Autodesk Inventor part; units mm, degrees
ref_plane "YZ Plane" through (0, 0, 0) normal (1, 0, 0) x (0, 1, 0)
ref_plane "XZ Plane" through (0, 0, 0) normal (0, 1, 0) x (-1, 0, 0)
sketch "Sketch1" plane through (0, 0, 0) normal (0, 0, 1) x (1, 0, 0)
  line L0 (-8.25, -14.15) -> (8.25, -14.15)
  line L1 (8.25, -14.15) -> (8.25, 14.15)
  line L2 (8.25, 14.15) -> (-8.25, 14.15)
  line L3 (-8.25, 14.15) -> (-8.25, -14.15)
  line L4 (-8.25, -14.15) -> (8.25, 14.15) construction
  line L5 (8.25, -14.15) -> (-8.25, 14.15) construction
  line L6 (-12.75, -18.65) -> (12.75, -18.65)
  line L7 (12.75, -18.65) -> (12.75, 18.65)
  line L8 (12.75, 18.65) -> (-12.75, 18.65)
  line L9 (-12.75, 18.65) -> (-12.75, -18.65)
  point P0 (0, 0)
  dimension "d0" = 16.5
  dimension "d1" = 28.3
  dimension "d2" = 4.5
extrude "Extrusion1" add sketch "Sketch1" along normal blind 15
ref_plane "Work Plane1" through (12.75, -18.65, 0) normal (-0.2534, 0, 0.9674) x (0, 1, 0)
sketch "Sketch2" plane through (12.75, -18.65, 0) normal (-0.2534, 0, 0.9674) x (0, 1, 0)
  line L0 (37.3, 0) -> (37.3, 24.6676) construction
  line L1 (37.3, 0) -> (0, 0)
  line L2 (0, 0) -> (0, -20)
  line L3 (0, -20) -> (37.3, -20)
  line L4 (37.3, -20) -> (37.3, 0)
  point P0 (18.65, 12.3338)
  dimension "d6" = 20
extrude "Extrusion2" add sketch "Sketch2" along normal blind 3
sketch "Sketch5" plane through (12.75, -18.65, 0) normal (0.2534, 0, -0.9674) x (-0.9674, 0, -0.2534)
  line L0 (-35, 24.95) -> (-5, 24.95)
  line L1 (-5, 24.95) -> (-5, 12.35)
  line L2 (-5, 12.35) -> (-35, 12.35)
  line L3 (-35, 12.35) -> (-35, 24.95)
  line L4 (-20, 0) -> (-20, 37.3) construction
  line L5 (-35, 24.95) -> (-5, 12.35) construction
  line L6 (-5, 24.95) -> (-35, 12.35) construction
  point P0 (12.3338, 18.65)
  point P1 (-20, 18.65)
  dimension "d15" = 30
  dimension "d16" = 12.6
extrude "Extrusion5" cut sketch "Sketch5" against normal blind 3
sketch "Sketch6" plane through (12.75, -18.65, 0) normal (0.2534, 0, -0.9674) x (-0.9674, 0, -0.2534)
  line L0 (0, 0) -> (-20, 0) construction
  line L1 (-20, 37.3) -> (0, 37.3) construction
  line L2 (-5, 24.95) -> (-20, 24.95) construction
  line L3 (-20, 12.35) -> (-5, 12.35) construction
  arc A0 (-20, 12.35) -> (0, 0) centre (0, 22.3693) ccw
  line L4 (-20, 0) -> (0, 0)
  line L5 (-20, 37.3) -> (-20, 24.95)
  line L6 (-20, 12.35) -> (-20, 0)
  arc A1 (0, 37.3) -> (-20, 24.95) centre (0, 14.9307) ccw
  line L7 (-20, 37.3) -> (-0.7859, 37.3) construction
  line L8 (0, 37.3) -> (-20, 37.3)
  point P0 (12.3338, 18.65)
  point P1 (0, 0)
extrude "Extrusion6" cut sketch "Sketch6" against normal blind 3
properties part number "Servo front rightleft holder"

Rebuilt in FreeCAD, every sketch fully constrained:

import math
import FreeCAD as App
import Part
import Sketcher


def add_polygon(sketch, points):
    """Adds a closed chain of lines whose ends are joined by coincident constraints."""
    first, n = sketch.GeometryCount, len(points)
    for a, b in zip(points, points[1:] + points[:1]):
        sketch.addGeometry(Part.LineSegment(App.Vector(*a, 0), App.Vector(*b, 0)), False)
    for i in range(n):
        sketch.addConstraint(Sketcher.Constraint("Coincident", first + i, 2, first + (i + 1) % n, 1))

doc = App.newDocument("Part")
body = doc.addObject("PartDesign::Body", "Body")

# Sketch on XY plane
sketch1 = doc.addObject("Sketcher::SketchObject", "Sketch")
body.addObject(sketch1)
sketch1.AttachmentSupport = (doc.XY_Plane, [""])
sketch1.MapMode = "FlatFace"
add_polygon(sketch1, [(-12.75, 18.65), (-12.75, -18.65), (12.75, -18.65), (12.75, 18.65)])  # lines 0-3
add_polygon(sketch1, [(8.25, -14.15), (-8.25, -14.15), (-8.25, 14.15), (8.25, 14.15)])  # lines 4-7
sketch1.addConstraint([
    Sketcher.Constraint("Vertical", 0),
    Sketcher.Constraint("Horizontal", 1),
    Sketcher.Constraint("Vertical", 2),
    Sketcher.Constraint("Horizontal", 3),
    Sketcher.Constraint("Horizontal", 4),
    Sketcher.Constraint("Vertical", 5),
    Sketcher.Constraint("Horizontal", 6),
    Sketcher.Constraint("Vertical", 7),
    Sketcher.Constraint("Symmetric", 0, 2, 2, 2, -1, 1),
    Sketcher.Constraint("Symmetric", 4, 2, 6, 2, -1, 1),
    Sketcher.Constraint("DistanceX", 4, 2, 4, 1, 16.5),
    Sketcher.Constraint("DistanceY", 5, 1, 5, 2, 28.3),
    Sketcher.Constraint("DistanceX", 0, 2, 4, 2, 4.5),
    Sketcher.Constraint("DistanceY", 0, 2, 4, 2, 4.5),
])
pad1 = doc.addObject("PartDesign::Pad", "Pad")
body.addObject(pad1)
pad1.Profile = sketch1
pad1.Length = 15

# Sketch on an angled plane
sketch2 = doc.addObject("Sketcher::SketchObject", "Sketch001")
body.addObject(sketch2)
sketch2.Placement = App.Placement(App.Vector(12.75, -18.65, 0), App.Rotation(App.Vector(0, 1, 0), App.Vector(-0.967364053, 0, -0.253390584), App.Vector(-0.253390584, 0, 0.967364053), "ZXY"))
add_polygon(sketch2, [(37.3, -20), (37.3, 0), (0, 0), (0, -20)])  # lines 0-3
sketch2.addConstraint([
    Sketcher.Constraint("Vertical", 0),
    Sketcher.Constraint("Horizontal", 1),
    Sketcher.Constraint("Vertical", 2),
    Sketcher.Constraint("Horizontal", 3),
    Sketcher.Constraint("Coincident", 1, 2, -1, 1),
    Sketcher.Constraint("DistanceY", 0, 1, 0, 2, 20.0),
    Sketcher.Constraint("DistanceX", 1, 2, 1, 1, 37.3),
])
pad2 = doc.addObject("PartDesign::Pad", "Pad001")
body.addObject(pad2)
pad2.Profile = sketch2
pad2.Length = 3

# Sketch on an angled plane
sketch3 = doc.addObject("Sketcher::SketchObject", "Sketch002")
body.addObject(sketch3)
sketch3.Placement = App.Placement(App.Vector(12.75, -18.65, 0), App.Rotation(App.Vector(-0.967364053, 0, -0.253390584), App.Vector(0, 0.999999999, 0), App.Vector(0.253390584, 0, -0.967364053), "ZXY"))
add_polygon(sketch3, [(-5, 24.95), (-35, 24.95), (-35, 12.35), (-5, 12.35)])  # lines 0-3
sketch3.addConstraint([
    Sketcher.Constraint("Horizontal", 0),
    Sketcher.Constraint("Vertical", 1),
    Sketcher.Constraint("Horizontal", 2),
    Sketcher.Constraint("Vertical", 3),
    Sketcher.Constraint("DistanceX", 0, 2, 0, 1, 30.0),
    Sketcher.Constraint("DistanceY", 1, 2, 1, 1, 12.6),
    Sketcher.Constraint("DistanceX", 0, 2, -1, 1, 35.0),
    Sketcher.Constraint("DistanceY", -1, 1, 0, 2, 24.95),
])
pocket1 = doc.addObject("PartDesign::Pocket", "Pocket")
body.addObject(pocket1)
pocket1.Profile = sketch3
pocket1.Length = 3

# Sketch on an angled plane
sketch4 = doc.addObject("Sketcher::SketchObject", "Sketch003")
body.addObject(sketch4)
sketch4.Placement = App.Placement(App.Vector(12.75, -18.65, 0), App.Rotation(App.Vector(-0.967364053, 0, -0.253390584), App.Vector(0, 0.999999999, 0), App.Vector(0.253390584, 0, -0.967364053), "ZXY"))
sketch4.addGeometry([
    Part.ArcOfCircle(Part.Circle(App.Vector(0, 22.3693, 0), App.Vector(0, 0, 1), 22.369318), math.radians(-153.390734), math.radians(-90)),  # 0
    Part.LineSegment(App.Vector(-20, 12.35, 0), App.Vector(-20, 0, 0)),  # 1
    Part.LineSegment(App.Vector(-20, 0, 0), App.Vector(0, 0, 0)),  # 2
    Part.LineSegment(App.Vector(0, 37.3, 0), App.Vector(-20, 37.3, 0)),  # 3
    Part.LineSegment(App.Vector(-20, 37.3, 0), App.Vector(-20, 24.95, 0)),  # 4
    Part.ArcOfCircle(Part.Circle(App.Vector(0, 14.9307, 0), App.Vector(0, 0, 1), 22.3693), math.radians(90), math.radians(153.390734)),  # 5
], False)
sketch4.addConstraint([
    Sketcher.Constraint("Coincident", 0, 1, 1, 1),
    Sketcher.Constraint("Coincident", 1, 2, 2, 1),
    Sketcher.Constraint("Tangent", 2, 2, 0, 2),
    Sketcher.Constraint("Coincident", 3, 2, 4, 1),
    Sketcher.Constraint("Coincident", 4, 2, 5, 2),
    Sketcher.Constraint("Tangent", 5, 1, 3, 1),
    Sketcher.Constraint("Vertical", 1),
    Sketcher.Constraint("Horizontal", 2),
    Sketcher.Constraint("Horizontal", 3),
    Sketcher.Constraint("Vertical", 4),
    Sketcher.Constraint("Coincident", 2, 2, -1, 1),
    Sketcher.Constraint("Equal", 0, 5),
    Sketcher.Constraint("PointOnObject", 5, 3, -2),
    Sketcher.Constraint("Vertical", 1, 2, 3, 2),
    Sketcher.Constraint("DistanceX", 2, 1, 2, 2, 20.0),
    Sketcher.Constraint("DistanceY", 1, 2, 1, 1, 12.35),
    Sketcher.Constraint("DistanceY", -1, 1, 3, 2, 37.3),
])
pocket2 = doc.addObject("PartDesign::Pocket", "Pocket001")
body.addObject(pocket2)
pocket2.Profile = sketch4
pocket2.Length = 3

doc.recompute()
